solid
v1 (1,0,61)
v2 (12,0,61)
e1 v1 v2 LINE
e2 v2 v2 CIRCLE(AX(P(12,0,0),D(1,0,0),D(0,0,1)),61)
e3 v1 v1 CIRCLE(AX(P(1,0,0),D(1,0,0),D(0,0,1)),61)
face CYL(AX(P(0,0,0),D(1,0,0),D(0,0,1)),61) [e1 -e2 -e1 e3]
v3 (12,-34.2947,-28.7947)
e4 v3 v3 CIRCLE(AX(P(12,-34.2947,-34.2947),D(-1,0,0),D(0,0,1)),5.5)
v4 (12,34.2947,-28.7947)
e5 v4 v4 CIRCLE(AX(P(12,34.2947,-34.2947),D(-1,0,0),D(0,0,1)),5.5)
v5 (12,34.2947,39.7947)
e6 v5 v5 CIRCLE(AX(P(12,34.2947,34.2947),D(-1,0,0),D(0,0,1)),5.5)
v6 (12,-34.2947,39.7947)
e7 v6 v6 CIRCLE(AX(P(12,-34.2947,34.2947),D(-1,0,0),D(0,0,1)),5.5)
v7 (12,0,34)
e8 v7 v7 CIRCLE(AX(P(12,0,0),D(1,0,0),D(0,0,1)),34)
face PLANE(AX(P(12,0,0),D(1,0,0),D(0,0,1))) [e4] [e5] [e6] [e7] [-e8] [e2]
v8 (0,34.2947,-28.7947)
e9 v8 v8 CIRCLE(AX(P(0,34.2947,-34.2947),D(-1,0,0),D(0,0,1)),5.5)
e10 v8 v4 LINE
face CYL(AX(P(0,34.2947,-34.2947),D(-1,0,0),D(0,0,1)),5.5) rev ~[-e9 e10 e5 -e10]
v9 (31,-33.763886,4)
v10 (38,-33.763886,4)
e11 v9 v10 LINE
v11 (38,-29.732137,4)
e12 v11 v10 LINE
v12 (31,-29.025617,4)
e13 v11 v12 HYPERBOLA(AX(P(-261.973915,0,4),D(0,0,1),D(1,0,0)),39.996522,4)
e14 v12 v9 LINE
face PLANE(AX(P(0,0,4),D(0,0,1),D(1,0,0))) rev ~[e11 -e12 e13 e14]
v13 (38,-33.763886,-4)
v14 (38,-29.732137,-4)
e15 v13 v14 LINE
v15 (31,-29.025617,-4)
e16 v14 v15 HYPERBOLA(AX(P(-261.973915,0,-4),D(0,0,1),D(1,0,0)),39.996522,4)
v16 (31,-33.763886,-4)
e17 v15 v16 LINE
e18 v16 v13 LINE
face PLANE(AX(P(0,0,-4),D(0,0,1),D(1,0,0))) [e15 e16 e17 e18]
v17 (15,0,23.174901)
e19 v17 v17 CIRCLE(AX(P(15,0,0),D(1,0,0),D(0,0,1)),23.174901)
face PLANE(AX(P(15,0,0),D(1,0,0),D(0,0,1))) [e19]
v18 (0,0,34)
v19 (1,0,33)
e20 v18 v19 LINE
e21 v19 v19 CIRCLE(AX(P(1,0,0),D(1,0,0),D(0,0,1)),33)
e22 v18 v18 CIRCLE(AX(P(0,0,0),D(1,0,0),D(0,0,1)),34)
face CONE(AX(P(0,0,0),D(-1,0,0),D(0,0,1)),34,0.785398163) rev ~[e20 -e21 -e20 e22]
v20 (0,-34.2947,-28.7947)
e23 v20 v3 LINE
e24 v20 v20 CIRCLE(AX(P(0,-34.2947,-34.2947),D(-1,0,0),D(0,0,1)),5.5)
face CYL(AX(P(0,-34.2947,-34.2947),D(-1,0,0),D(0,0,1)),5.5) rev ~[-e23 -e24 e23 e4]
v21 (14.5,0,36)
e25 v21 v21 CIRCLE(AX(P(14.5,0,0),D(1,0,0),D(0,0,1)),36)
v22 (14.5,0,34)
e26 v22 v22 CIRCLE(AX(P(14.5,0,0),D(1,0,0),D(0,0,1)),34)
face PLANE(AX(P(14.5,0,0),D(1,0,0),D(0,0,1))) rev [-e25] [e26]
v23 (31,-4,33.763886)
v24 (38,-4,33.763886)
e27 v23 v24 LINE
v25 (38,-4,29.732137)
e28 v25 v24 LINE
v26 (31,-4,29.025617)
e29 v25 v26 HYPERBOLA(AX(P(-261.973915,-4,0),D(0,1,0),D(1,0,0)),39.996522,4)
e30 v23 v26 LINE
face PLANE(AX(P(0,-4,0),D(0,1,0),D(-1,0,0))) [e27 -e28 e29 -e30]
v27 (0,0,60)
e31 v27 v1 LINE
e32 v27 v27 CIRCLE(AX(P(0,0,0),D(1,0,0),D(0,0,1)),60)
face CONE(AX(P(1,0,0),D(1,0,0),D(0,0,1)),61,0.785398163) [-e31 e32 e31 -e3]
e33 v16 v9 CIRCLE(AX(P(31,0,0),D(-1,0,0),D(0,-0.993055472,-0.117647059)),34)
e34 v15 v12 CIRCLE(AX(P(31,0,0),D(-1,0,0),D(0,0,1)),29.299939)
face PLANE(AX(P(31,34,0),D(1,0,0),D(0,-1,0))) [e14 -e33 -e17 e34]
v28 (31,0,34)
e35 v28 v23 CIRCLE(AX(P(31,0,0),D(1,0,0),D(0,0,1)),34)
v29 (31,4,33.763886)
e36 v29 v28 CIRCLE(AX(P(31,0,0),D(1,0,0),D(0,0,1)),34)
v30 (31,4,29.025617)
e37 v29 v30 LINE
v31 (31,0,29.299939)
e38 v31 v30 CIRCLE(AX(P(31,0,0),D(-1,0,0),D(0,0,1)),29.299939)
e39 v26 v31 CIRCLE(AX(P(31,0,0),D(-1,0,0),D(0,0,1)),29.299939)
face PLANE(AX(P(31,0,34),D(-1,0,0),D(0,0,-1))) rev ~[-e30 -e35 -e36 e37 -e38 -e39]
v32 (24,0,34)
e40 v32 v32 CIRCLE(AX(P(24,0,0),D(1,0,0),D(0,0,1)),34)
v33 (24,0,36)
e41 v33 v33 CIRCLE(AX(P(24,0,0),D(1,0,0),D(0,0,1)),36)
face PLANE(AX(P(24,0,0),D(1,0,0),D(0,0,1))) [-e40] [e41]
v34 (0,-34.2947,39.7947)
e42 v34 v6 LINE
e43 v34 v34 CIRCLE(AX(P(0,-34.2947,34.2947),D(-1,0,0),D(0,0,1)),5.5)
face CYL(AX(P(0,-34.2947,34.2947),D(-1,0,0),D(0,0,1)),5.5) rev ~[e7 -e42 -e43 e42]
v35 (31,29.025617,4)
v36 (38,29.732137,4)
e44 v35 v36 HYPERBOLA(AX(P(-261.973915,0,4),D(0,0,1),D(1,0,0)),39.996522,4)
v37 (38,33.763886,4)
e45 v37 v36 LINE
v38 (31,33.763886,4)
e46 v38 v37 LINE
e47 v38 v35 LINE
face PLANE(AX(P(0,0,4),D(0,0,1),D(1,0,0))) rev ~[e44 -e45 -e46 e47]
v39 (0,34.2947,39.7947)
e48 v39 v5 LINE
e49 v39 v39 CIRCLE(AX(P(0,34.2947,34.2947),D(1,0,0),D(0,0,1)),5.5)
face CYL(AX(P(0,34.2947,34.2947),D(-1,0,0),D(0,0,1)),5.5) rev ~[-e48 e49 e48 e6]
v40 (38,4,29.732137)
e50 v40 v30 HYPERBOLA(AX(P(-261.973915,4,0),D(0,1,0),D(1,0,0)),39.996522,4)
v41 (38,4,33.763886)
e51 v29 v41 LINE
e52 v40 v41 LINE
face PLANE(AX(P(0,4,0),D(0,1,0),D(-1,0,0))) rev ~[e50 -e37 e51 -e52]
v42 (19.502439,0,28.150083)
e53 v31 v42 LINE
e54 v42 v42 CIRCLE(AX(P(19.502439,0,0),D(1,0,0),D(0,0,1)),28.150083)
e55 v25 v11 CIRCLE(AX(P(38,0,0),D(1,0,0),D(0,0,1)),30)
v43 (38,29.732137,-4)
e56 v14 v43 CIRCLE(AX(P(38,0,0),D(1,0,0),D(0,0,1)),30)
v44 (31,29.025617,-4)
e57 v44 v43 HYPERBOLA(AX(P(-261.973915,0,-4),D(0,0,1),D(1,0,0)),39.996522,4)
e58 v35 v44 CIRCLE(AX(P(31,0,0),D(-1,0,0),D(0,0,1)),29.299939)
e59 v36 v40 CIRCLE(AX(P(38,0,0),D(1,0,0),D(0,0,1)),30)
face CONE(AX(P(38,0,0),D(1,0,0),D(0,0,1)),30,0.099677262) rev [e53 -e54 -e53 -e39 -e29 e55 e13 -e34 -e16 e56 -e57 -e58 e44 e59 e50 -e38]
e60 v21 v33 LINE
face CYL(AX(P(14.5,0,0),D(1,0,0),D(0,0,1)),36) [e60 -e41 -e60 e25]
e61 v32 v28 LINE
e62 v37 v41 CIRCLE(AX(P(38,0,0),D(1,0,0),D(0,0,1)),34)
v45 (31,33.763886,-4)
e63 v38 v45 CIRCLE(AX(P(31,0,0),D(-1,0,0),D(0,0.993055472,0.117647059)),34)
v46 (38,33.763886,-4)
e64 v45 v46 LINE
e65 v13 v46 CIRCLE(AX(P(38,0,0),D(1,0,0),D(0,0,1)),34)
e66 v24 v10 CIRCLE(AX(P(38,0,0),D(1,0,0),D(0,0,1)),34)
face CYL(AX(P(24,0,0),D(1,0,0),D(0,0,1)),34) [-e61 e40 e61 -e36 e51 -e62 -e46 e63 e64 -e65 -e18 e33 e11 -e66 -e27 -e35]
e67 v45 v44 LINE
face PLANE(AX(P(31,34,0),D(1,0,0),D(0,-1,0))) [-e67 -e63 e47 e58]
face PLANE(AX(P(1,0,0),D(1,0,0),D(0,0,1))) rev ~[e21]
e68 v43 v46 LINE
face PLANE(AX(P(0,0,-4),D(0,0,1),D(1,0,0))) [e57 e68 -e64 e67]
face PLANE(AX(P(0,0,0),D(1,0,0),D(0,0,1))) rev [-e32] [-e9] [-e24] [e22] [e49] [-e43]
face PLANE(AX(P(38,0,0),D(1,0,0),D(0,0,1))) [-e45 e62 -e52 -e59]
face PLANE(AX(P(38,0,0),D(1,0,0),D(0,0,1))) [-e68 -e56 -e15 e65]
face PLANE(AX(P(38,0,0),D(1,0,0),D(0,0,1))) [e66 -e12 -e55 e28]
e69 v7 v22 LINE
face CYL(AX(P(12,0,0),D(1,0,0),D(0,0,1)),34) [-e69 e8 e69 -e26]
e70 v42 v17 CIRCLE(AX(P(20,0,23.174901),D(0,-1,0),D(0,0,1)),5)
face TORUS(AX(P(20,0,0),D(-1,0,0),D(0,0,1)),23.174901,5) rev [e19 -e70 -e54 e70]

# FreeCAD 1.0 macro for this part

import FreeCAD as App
import Part
import Sketcher

V = App.Vector
Q = App.Units.Quantity


def edges_at(feature, points):
    """Names of the edges that pass closest to the given points."""
    edges = feature.Shape.Edges
    near = lambda p: min(range(len(edges)), key=lambda i: edges[i].distToShape(Part.Vertex(*p))[0])
    return sorted({f"Edge{near(p) + 1}" for p in points})


def add_polygon(sketch, points):
    """Adds a closed chain of lines whose ends are joined by coincident constraints."""
    first, n = sketch.GeometryCount, len(points)
    for a, b in zip(points, points[1:] + points[:1]):
        sketch.addGeometry(Part.LineSegment(App.Vector(*a, 0), App.Vector(*b, 0)), False)
    for i in range(n):
        sketch.addConstraint(Sketcher.Constraint("Coincident", first + i, 2, first + (i + 1) % n, 1))

doc = App.newDocument("Part")
body = doc.addObject("PartDesign::Body", "Body")

sketch1 = doc.addObject("Sketcher::SketchObject", "Sketch")
body.addObject(sketch1)
sketch1.AttachmentSupport = (doc.XZ_Plane, [""])
sketch1.MapMode = "FlatFace"
add_polygon(sketch1, [(0, 34), (0, 61), (12, 61), (12, 34), (14.5, 34), (14.5, 36), (24, 36), (24, 34), (38, 34), (38, 30), (15, 27.6998), (15, 0), (1, 0), (1, 33)])
sketch1.addConstraint(Sketcher.Constraint("Vertical", 0))
sketch1.addConstraint(Sketcher.Constraint("Horizontal", 1))
sketch1.addConstraint(Sketcher.Constraint("Vertical", 2))
sketch1.addConstraint(Sketcher.Constraint("Horizontal", 3))
sketch1.addConstraint(Sketcher.Constraint("Vertical", 4))
sketch1.addConstraint(Sketcher.Constraint("Horizontal", 5))
sketch1.addConstraint(Sketcher.Constraint("Vertical", 6))
sketch1.addConstraint(Sketcher.Constraint("Horizontal", 7))
sketch1.addConstraint(Sketcher.Constraint("Vertical", 8))
sketch1.addConstraint(Sketcher.Constraint("Vertical", 10))
sketch1.addConstraint(Sketcher.Constraint("Horizontal", 11))
sketch1.addConstraint(Sketcher.Constraint("Vertical", 12))
sketch1.addConstraint(Sketcher.Constraint("PointOnObject", 0, 2, -2))
sketch1.addConstraint(Sketcher.Constraint("PointOnObject", 10, 2, -1))
sketch1.addConstraint(Sketcher.Constraint("Horizontal", 3, 2, 6, 2))
sketch1.addConstraint(Sketcher.Constraint("Horizontal", 7, 2, 13, 2))
sketch1.addConstraint(Sketcher.Constraint("Equal", 7, 11))
sketch1.addConstraint(Sketcher.Constraint("DistanceX", 1, 1, 1, 2, 12.0))
sketch1.addConstraint(Sketcher.Constraint("DistanceX", 3, 1, 3, 2, 2.5))
sketch1.addConstraint(Sketcher.Constraint("DistanceY", -1, 1, 0, 2, 61.0))
sketch1.addConstraint(Sketcher.Constraint("DistanceY", -1, 1, 2, 2, 34.0))
sketch1.addConstraint(Sketcher.Constraint("DistanceY", -1, 1, 4, 2, 36.0))
sketch1.addConstraint(Sketcher.Constraint("DistanceY", -1, 1, 8, 2, 30.0))
sketch1.addConstraint(Sketcher.Constraint("DistanceX", -1, 1, 9, 2, 15.0))
sketch1.addConstraint(Sketcher.Constraint("DistanceX", -1, 1, 11, 2, 1.0))
sketch1.addConstraint(Sketcher.Constraint("DistanceX", 2, 2, 5, 2, 12.0))
sketch1.addConstraint(Sketcher.Constraint("DistanceY", 12, 2, 2, 2, 1.0))
sketch1.addConstraint(Sketcher.Constraint("Angle", 9, Q("-174.289 deg")))
revolution = doc.addObject("PartDesign::Revolution", "Revolution")
body.addObject(revolution)
revolution.Profile = sketch1
revolution.ReferenceAxis = (sketch1, ["H_Axis"])
revolution.Angle = 360

sketch2 = doc.addObject("Sketcher::SketchObject", "Sketch001")
body.addObject(sketch2)
sketch2.AttachmentSupport = (doc.XZ_Plane, [""])
sketch2.MapMode = "FlatFace"
add_polygon(sketch2, [(31, -24), (31, 34), (38, 34), (38, -24)])
sketch2.addConstraint(Sketcher.Constraint("Vertical", 0))
sketch2.addConstraint(Sketcher.Constraint("Horizontal", 1))
sketch2.addConstraint(Sketcher.Constraint("Vertical", 2))
sketch2.addConstraint(Sketcher.Constraint("Horizontal", 3))
sketch2.addConstraint(Sketcher.Constraint("DistanceX", 1, 1, 1, 2, 7.0))
sketch2.addConstraint(Sketcher.Constraint("DistanceY", 0, 1, 0, 2, 58.0))
sketch2.addConstraint(Sketcher.Constraint("DistanceX", -1, 1, 0, 2, 31.0))
sketch2.addConstraint(Sketcher.Constraint("DistanceY", -1, 1, 0, 2, 34.0))
pocket1 = doc.addObject("PartDesign::Pocket", "Pocket")
body.addObject(pocket1)
pocket1.Profile = sketch2
pocket1.Length = 8
pocket1.Midplane = True

sketch3 = doc.addObject("Sketcher::SketchObject", "Sketch002")
body.addObject(sketch3)
sketch3.AttachmentSupport = (doc.XY_Plane, [""])
sketch3.MapMode = "FlatFace"
add_polygon(sketch3, [(38, -34), (38, 34), (31, 34), (31, -34)])
sketch3.addConstraint(Sketcher.Constraint("Vertical", 0))
sketch3.addConstraint(Sketcher.Constraint("Horizontal", 1))
sketch3.addConstraint(Sketcher.Constraint("Vertical", 2))
sketch3.addConstraint(Sketcher.Constraint("Horizontal", 3))
sketch3.addConstraint(Sketcher.Constraint("DistanceX", 1, 2, 1, 1, 7.0))
sketch3.addConstraint(Sketcher.Constraint("DistanceY", 0, 1, 0, 2, 68.0))
sketch3.addConstraint(Sketcher.Constraint("DistanceX", -1, 1, 0, 2, 38.0))
sketch3.addConstraint(Sketcher.Constraint("DistanceY", -1, 1, 0, 2, 34.0))
pocket2 = doc.addObject("PartDesign::Pocket", "Pocket001")
body.addObject(pocket2)
pocket2.Profile = sketch3
pocket2.Length = 8
pocket2.Midplane = True

sketch4 = doc.addObject("Sketcher::SketchObject", "Sketch003")
body.addObject(sketch4)
sketch4.AttachmentSupport = (doc.YZ_Plane, [""])
sketch4.MapMode = "FlatFace"
sketch4.addGeometry(Part.Circle(V(34.2947, 34.2947, 0), V(0, 0, 1), 5.5), False)
sketch4.addGeometry(Part.Circle(V(34.2947, -34.2947, 0), V(0, 0, 1), 5.5), False)
sketch4.addGeometry(Part.Circle(V(-34.2947, -34.2947, 0), V(0, 0, 1), 5.5), False)
sketch4.addGeometry(Part.Circle(V(-34.2947, 34.2947, 0), V(0, 0, 1), 5.5), False)
sketch4.addConstraint(Sketcher.Constraint("Equal", 0, 1))
sketch4.addConstraint(Sketcher.Constraint("Equal", 1, 2))
sketch4.addConstraint(Sketcher.Constraint("Equal", 2, 3))
sketch4.addConstraint(Sketcher.Constraint("Symmetric", 0, 3, 2, 3, -1, 1))
sketch4.addConstraint(Sketcher.Constraint("Symmetric", 1, 3, 3, 3, -1, 1))
sketch4.addConstraint(Sketcher.Constraint("Symmetric", 1, 3, 2, 3, -2))
sketch4.addConstraint(Sketcher.Constraint("Diameter", 0, 11.0))
sketch4.addConstraint(Sketcher.Constraint("DistanceX", -1, 1, 0, 3, 34.2947))
sketch4.addConstraint(Sketcher.Constraint("DistanceY", -1, 1, 0, 3, 34.2947))
pocket3 = doc.addObject("PartDesign::Pocket", "Pocket002")
body.addObject(pocket3)
pocket3.Profile = sketch4
pocket3.Length = 12
pocket3.Reversed = True
doc.recompute()

chamfer = doc.addObject("PartDesign::Chamfer", "Chamfer")
body.addObject(chamfer)
chamfer.Base = (pocket3, edges_at(pocket3, [(0, 0, -61)]))
chamfer.Size = 1
doc.recompute()

fillet = doc.addObject("PartDesign::Fillet", "Fillet")
body.addObject(fillet)
fillet.Base = (chamfer, edges_at(chamfer, [(15, 0, -27.7)]))
fillet.Radius = 5

doc.recompute()
